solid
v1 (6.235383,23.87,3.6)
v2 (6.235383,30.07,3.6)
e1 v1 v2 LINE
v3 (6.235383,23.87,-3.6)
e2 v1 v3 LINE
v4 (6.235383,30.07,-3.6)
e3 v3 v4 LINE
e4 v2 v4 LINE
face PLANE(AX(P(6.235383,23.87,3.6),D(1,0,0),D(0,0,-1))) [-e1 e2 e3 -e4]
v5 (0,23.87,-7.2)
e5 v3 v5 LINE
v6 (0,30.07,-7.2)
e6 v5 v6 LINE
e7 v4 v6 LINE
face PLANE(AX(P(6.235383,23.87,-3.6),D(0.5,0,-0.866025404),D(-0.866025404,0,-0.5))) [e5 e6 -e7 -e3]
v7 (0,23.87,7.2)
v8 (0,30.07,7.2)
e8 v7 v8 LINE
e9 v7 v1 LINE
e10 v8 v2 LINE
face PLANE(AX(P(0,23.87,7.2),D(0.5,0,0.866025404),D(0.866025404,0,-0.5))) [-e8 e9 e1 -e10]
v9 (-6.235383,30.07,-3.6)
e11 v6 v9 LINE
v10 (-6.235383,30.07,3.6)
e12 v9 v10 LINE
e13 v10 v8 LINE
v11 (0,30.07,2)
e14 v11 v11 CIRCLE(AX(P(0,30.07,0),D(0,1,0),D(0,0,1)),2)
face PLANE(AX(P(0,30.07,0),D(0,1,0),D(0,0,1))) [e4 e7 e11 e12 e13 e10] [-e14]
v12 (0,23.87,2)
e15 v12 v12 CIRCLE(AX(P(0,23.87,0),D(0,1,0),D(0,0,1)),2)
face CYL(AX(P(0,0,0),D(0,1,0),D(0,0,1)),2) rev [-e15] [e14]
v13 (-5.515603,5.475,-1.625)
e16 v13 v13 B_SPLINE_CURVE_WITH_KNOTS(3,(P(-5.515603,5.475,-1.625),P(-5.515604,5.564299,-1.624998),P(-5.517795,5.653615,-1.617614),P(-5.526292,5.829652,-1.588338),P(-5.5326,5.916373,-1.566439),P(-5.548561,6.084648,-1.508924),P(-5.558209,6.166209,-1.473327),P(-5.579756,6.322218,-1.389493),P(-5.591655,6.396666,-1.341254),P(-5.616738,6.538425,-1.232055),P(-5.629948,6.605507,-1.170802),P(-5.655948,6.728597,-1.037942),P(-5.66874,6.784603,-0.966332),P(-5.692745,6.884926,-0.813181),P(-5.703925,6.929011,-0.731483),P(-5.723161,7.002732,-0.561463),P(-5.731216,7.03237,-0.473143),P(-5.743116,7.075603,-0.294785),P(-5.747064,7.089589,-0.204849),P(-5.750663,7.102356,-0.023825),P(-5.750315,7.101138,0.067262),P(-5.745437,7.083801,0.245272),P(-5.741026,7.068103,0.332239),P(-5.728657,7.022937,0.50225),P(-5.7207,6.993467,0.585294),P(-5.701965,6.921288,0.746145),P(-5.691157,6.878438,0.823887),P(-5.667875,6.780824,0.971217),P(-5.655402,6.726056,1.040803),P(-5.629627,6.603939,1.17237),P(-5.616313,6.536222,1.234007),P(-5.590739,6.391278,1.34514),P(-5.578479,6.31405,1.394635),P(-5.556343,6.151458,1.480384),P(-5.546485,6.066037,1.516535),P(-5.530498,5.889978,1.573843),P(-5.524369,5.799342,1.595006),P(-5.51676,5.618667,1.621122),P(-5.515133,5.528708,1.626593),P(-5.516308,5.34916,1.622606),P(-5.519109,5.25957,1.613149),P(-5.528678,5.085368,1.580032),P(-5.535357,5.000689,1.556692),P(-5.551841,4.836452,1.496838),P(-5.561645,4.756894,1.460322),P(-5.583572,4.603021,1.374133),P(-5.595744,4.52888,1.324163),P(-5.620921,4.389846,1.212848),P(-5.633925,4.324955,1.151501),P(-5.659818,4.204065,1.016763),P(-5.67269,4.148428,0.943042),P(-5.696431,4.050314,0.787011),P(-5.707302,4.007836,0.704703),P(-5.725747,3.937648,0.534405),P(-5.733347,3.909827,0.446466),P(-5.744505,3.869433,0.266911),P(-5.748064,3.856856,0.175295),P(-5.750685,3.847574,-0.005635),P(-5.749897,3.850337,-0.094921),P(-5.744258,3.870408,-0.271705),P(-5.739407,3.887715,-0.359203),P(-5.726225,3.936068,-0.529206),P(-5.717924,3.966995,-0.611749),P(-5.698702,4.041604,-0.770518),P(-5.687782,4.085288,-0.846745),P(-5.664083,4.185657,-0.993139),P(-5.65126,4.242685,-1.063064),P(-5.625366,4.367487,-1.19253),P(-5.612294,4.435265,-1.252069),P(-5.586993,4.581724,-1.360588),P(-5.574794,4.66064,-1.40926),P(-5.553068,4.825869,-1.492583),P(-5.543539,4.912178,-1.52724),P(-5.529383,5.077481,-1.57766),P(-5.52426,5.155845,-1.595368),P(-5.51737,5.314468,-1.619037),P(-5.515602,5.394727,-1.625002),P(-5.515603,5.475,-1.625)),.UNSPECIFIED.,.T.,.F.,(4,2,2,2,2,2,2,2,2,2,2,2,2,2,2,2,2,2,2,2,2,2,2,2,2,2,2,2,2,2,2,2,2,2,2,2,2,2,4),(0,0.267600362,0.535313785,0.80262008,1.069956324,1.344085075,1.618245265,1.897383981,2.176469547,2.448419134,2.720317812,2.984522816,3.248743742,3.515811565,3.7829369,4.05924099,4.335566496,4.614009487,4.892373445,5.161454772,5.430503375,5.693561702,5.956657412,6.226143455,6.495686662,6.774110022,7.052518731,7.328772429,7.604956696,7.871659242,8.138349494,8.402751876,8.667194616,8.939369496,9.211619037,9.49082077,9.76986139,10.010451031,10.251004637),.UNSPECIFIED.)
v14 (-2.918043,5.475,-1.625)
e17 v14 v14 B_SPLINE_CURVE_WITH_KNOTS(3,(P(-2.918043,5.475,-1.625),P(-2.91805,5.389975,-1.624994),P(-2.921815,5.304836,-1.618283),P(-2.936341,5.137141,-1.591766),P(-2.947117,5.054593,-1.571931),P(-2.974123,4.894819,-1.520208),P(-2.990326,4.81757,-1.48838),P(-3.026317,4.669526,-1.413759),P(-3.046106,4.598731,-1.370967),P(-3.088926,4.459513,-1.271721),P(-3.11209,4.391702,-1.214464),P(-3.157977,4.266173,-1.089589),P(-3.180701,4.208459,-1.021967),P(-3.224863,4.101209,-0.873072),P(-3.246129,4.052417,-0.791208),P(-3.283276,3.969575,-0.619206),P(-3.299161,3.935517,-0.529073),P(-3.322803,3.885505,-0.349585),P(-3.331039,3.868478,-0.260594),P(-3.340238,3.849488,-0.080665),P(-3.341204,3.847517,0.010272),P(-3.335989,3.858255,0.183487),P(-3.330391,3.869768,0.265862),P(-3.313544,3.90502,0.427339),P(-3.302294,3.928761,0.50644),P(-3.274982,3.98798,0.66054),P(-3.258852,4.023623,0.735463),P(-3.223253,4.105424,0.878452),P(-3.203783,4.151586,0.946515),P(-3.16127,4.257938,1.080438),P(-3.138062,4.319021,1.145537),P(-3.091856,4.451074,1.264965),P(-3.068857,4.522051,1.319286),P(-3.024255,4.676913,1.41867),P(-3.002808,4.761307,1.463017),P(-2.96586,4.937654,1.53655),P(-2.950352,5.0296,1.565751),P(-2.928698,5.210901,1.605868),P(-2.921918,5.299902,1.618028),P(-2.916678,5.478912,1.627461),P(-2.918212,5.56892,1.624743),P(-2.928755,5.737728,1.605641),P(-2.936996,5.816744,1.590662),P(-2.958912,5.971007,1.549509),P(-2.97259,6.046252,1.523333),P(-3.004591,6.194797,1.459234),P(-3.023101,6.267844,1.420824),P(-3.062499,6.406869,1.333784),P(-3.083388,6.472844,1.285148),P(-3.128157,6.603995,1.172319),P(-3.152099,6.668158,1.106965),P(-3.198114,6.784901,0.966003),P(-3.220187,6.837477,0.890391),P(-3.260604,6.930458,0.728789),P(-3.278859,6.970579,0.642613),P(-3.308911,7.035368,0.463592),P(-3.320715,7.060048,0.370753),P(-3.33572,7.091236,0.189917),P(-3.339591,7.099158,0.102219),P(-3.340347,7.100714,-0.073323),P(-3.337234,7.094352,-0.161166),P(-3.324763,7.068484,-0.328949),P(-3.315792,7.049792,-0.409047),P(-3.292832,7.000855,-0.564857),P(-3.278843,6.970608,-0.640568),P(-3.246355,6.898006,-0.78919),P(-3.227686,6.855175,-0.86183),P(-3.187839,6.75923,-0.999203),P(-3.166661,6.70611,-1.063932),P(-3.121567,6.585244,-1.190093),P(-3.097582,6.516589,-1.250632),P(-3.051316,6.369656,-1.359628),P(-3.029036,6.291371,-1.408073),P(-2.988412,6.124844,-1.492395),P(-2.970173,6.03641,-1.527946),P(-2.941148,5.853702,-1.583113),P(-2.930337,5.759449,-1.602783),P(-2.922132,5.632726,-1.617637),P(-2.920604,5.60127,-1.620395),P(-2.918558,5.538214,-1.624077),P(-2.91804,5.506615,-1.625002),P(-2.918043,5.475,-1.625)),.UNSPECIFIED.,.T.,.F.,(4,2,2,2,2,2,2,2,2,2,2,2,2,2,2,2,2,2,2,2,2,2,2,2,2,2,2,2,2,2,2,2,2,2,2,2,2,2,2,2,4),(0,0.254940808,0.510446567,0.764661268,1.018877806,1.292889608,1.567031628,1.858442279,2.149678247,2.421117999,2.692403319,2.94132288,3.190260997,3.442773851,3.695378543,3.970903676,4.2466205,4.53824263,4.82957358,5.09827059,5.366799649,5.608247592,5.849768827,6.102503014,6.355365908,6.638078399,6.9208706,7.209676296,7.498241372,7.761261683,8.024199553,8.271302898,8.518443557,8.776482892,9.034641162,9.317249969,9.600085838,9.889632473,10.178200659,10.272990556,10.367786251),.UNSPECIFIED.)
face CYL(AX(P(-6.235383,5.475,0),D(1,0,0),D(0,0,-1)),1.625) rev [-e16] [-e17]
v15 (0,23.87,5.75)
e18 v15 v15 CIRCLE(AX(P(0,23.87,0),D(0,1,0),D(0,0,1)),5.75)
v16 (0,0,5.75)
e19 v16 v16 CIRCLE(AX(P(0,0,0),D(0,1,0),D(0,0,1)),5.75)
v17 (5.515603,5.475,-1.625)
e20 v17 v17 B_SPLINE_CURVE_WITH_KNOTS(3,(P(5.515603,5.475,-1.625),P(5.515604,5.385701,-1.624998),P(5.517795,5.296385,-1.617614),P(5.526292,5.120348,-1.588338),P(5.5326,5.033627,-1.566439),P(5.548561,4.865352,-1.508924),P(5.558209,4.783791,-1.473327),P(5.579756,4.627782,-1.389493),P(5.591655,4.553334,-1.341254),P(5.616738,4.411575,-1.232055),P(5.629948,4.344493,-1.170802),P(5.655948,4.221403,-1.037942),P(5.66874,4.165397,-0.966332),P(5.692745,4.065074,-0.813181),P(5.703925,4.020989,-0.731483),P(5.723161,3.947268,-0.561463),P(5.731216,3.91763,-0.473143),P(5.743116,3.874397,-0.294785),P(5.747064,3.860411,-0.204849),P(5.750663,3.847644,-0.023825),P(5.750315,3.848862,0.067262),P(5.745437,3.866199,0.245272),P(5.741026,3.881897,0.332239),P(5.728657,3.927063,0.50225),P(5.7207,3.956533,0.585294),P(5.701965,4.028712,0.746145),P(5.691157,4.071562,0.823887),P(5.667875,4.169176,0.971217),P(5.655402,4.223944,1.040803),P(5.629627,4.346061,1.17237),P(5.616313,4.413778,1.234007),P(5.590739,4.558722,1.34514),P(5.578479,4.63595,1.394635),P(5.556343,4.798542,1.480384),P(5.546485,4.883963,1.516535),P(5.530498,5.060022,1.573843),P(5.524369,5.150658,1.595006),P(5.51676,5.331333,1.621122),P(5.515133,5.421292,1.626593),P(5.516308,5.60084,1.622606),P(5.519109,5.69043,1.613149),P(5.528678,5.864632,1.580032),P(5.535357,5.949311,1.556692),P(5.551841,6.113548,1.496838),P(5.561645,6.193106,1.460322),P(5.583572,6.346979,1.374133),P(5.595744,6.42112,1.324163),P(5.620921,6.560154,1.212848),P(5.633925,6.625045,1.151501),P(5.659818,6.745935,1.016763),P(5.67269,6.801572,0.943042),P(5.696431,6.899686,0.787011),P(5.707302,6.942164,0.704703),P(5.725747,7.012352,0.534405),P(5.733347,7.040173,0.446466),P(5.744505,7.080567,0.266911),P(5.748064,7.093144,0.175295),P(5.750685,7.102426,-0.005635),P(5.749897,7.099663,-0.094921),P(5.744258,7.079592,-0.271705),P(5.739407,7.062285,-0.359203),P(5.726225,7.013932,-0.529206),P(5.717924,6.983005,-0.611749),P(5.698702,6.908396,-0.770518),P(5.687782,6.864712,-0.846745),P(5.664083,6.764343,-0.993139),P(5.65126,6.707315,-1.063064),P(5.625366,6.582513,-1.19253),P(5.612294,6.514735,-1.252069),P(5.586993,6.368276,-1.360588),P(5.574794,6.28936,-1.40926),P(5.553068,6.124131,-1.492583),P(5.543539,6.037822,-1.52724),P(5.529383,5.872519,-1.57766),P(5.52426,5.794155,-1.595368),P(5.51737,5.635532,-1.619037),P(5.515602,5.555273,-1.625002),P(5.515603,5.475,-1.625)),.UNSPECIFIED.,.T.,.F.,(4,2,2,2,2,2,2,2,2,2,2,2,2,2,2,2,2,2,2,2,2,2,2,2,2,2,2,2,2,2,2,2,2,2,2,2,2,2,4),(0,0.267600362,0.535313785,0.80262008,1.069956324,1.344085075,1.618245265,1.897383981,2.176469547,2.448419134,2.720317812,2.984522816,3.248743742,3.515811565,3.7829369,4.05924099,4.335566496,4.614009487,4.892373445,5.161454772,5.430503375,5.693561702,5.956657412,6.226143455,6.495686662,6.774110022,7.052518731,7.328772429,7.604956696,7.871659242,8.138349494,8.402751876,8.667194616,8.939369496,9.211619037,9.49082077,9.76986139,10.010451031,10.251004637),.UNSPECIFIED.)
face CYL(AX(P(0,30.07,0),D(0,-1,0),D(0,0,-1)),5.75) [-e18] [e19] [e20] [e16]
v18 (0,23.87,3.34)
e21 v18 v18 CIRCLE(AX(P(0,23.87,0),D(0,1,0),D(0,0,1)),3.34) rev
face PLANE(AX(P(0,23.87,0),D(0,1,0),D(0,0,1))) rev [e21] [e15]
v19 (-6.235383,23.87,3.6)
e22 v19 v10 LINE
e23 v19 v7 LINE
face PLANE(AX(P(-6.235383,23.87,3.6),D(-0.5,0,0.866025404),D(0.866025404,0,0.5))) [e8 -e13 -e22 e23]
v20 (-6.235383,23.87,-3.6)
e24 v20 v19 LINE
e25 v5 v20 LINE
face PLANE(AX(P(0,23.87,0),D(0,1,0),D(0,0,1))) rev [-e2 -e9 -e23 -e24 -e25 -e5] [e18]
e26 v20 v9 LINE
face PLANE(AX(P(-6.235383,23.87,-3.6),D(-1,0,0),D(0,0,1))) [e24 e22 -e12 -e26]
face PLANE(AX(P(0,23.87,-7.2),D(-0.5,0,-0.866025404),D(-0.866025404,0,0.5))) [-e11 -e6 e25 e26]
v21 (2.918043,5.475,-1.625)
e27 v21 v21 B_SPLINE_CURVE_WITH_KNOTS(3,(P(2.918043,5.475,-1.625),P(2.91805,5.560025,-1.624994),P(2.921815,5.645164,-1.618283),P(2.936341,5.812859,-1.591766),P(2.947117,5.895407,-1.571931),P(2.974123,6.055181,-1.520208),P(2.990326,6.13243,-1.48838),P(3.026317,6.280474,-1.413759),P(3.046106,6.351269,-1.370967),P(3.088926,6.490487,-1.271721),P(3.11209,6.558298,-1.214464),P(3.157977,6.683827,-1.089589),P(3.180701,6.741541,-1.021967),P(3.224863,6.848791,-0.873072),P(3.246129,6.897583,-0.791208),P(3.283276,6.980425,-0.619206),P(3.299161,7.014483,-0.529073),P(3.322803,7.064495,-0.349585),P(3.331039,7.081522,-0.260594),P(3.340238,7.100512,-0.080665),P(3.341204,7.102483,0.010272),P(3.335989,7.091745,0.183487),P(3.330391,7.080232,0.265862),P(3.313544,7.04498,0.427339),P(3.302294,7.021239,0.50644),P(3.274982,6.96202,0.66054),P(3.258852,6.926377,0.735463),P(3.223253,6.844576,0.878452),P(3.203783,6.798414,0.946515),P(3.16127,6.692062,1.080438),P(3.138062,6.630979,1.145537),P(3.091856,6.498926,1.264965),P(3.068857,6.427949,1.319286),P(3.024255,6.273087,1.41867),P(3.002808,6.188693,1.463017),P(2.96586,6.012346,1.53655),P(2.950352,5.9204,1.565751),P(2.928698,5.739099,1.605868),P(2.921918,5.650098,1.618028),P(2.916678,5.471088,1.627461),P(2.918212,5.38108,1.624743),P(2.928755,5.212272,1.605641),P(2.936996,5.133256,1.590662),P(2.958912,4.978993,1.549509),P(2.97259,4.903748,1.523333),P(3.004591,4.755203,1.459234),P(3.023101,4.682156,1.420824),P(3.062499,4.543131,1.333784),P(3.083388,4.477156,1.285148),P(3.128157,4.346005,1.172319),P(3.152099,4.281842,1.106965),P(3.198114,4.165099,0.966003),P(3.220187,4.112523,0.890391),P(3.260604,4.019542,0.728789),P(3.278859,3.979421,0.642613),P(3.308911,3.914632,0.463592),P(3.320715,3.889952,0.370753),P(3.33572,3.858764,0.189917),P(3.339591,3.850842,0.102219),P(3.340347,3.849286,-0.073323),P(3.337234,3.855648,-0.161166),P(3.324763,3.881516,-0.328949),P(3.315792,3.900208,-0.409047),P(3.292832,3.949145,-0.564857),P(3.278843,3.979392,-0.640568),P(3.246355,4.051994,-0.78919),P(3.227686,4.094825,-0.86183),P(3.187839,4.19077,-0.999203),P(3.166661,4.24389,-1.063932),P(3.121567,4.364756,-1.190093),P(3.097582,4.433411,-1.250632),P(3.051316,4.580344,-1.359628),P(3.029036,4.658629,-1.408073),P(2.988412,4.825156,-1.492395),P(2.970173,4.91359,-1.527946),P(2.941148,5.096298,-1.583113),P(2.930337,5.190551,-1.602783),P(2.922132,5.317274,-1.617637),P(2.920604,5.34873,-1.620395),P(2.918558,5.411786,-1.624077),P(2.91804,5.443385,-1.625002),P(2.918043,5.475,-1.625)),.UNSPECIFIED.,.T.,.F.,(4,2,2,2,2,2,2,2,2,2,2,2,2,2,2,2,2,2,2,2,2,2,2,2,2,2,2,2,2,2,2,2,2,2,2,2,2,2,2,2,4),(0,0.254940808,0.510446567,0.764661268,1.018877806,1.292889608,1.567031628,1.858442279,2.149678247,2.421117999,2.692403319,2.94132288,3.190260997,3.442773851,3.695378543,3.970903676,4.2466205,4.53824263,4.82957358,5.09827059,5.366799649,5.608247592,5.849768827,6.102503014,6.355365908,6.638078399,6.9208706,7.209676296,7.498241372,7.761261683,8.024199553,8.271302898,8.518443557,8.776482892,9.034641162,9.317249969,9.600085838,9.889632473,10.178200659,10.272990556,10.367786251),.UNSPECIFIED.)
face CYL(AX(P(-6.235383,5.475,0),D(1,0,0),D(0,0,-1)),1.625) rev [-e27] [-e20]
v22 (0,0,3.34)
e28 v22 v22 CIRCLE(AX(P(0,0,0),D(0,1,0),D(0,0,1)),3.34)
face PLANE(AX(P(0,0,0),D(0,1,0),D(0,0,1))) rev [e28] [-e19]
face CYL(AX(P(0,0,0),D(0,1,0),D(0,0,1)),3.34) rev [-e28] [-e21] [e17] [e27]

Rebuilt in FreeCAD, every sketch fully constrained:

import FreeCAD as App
import Part
import Sketcher
from FreeCAD import Vector
Q = App.Units.Quantity

doc = App.newDocument("Part")
params = doc.addObject("Spreadsheet::Sheet", "Params")
for row, (alias, value) in enumerate([
    ("sketch1_diameter", "11.5 mm"),
    ("pad1_length", "30.07 mm"),
    ("sketch2_diameter", "6.68 mm"),
    ("sketch3_height", "7.2 mm"),
    ("sketch3_length", "7.2 mm"),
    ("pad2_length", "6.2 mm"),
    ("sketch4_diameter", "4 mm"),
    ("sketch5_diameter", "3.25 mm"),
], start=1):
    params.set(f"A{row}", alias)
    params.set(f"B{row}", "=" + value)
    params.setAlias(f"B{row}", alias)

body = doc.addObject("PartDesign::Body", "Body")

sketch1 = body.newObject("Sketcher::SketchObject", "Sketch")
sketch1.AttachmentSupport = (doc.getObject("XZ_Plane"), [""])
sketch1.MapMode = "FlatFace"
sketch1.addGeometry(Part.Circle(Vector(0, 0, 0), Vector(0, 0, 1), 6), False)
sketch1.addConstraint([
    Sketcher.Constraint("Coincident", 0, 3, -1, 1),
    Sketcher.Constraint("Diameter", 0, 11.5),
])
sketch1.setExpression("Constraints[1]", "Params.sketch1_diameter")
pad1 = body.newObject("PartDesign::Pad", "Pad")
pad1.Profile = sketch1
pad1.setExpression("Length", "Params.pad1_length")
pad1.Reversed = True

sketch2 = body.newObject("Sketcher::SketchObject", "Sketch001")
sketch2.AttachmentSupport = (doc.getObject("XZ_Plane"), [""])
sketch2.MapMode = "FlatFace"
sketch2.AttachmentOffset = App.Placement(Vector(0, 0, -30.07), App.Rotation())
sketch2.addGeometry(Part.Circle(Vector(0, 0, 0), Vector(0, 0, 1), 3.3), False)
sketch2.addConstraint([
    Sketcher.Constraint("Coincident", 0, 3, -1, 1),
    Sketcher.Constraint("Diameter", 0, 6.68),
])
sketch2.setExpression("Constraints[1]", "Params.sketch2_diameter")
pocket1 = body.newObject("PartDesign::Pocket", "Pocket")
pocket1.Profile = sketch2
pocket1.Type = "ThroughAll"
pocket1.Reversed = True

sketch3 = body.newObject("Sketcher::SketchObject", "Sketch002")
sketch3.AttachmentSupport = (doc.getObject("XZ_Plane"), [""])
sketch3.MapMode = "FlatFace"
sketch3.AttachmentOffset = App.Placement(Vector(0, 0, -30.07), App.Rotation())
sketch3.addGeometry([
    Part.LineSegment(Vector(0, 7, 0), Vector(6, 4, 0)),
    Part.LineSegment(Vector(6, 4, 0), Vector(6, -4, 0)),
    Part.LineSegment(Vector(6, -4, 0), Vector(0, -7, 0)),
    Part.LineSegment(Vector(0, -7, 0), Vector(-6, -4, 0)),
    Part.LineSegment(Vector(-6, -4, 0), Vector(-6, 4, 0)),
    Part.LineSegment(Vector(-6, 4, 0), Vector(0, 7, 0)),
], False)
sketch3.addConstraint([
    Sketcher.Constraint("Coincident", 0, 2, 1, 1),
    Sketcher.Constraint("Coincident", 1, 2, 2, 1),
    Sketcher.Constraint("Coincident", 2, 2, 3, 1),
    Sketcher.Constraint("Coincident", 3, 2, 4, 1),
    Sketcher.Constraint("Coincident", 4, 2, 5, 1),
    Sketcher.Constraint("Coincident", 5, 2, 0, 1),
    Sketcher.Constraint("Vertical", 1),
    Sketcher.Constraint("Vertical", 4),
    Sketcher.Constraint("Symmetric", 0, 2, 3, 2, -1, 1),
    Sketcher.Constraint("Symmetric", 2, 2, 5, 2, -1, 1),
    Sketcher.Constraint("PointOnObject", 2, 2, -2),
    Sketcher.Constraint("Parallel", 2, 5),
    Sketcher.Constraint("Horizontal", 1, 2, 3, 2),
    Sketcher.Constraint("Angle", 0, Q("-30 deg")),
    Sketcher.Constraint("DistanceY", 1, 2, 1, 1, 7.2),
    Sketcher.Constraint("Distance", 0, 7.2),
])
sketch3.setExpression("Constraints[14]", "Params.sketch3_height")
sketch3.setExpression("Constraints[15]", "Params.sketch3_length")
pad2 = body.newObject("PartDesign::Pad", "Pad001")
pad2.Profile = sketch3
pad2.setExpression("Length", "Params.pad2_length")

sketch4 = body.newObject("Sketcher::SketchObject", "Sketch003")
sketch4.AttachmentSupport = (doc.getObject("XZ_Plane"), [""])
sketch4.MapMode = "FlatFace"
sketch4.AttachmentOffset = App.Placement(Vector(0, 0, -30.07), App.Rotation())
sketch4.addGeometry(Part.Circle(Vector(0, 0, 0), Vector(0, 0, 1), 2), False)
sketch4.addConstraint([
    Sketcher.Constraint("Coincident", 0, 3, -1, 1),
    Sketcher.Constraint("Diameter", 0, 4.0),
])
sketch4.setExpression("Constraints[1]", "Params.sketch4_diameter")
pocket2 = body.newObject("PartDesign::Pocket", "Pocket001")
pocket2.Profile = sketch4
pocket2.Type = "ThroughAll"
pocket2.Reversed = True

sketch5 = body.newObject("Sketcher::SketchObject", "Sketch004")
sketch5.AttachmentSupport = (doc.getObject("YZ_Plane"), [""])
sketch5.MapMode = "FlatFace"
sketch5.addGeometry(Part.Circle(Vector(5.5, 0, 0), Vector(0, 0, 1), 1.6), False)
sketch5.addConstraint([
    Sketcher.Constraint("PointOnObject", 0, 3, -1),
    Sketcher.Constraint("Diameter", 0, 3.25),
    Sketcher.Constraint("DistanceX", -1, 1, 0, 3, 5.475),
])
sketch5.setExpression("Constraints[1]", "Params.sketch5_diameter")
pocket3 = body.newObject("PartDesign::Pocket", "Pocket002")
pocket3.Profile = sketch5
pocket3.Type = "ThroughAll"
pocket3.Midplane = True

doc.recompute()
